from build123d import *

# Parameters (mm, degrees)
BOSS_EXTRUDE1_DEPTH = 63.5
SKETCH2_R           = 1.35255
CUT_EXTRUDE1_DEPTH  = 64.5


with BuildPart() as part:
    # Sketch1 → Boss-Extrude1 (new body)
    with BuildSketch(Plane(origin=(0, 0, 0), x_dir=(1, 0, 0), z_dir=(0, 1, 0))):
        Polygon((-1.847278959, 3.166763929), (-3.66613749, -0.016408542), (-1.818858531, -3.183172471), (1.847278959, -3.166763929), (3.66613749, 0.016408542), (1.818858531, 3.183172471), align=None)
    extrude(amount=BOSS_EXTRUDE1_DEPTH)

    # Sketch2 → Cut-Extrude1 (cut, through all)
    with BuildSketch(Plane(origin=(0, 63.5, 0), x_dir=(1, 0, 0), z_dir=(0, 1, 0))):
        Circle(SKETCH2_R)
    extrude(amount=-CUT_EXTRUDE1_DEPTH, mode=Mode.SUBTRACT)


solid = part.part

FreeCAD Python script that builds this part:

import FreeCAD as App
import Part
import Sketcher
Q = App.Units.Quantity

doc = App.newDocument("Part")
body = doc.addObject("PartDesign::Body", "Body")

sketch1 = body.newObject("Sketcher::SketchObject", "Sketch")
sketch1.AttachmentSupport = (doc.getObject("XZ_Plane"), [""])
sketch1.MapMode = "FlatFace"
sketch1.addGeometry([
    Part.LineSegment(App.Vector(-1.8, -3.2, 0), App.Vector(-3.7, 0, 0)),
    Part.LineSegment(App.Vector(-3.7, 0, 0), App.Vector(-1.8, 3.2, 0)),
    Part.LineSegment(App.Vector(-1.8, 3.2, 0), App.Vector(1.8, 3.2, 0)),
    Part.LineSegment(App.Vector(1.8, 3.2, 0), App.Vector(3.7, 0, 0)),
    Part.LineSegment(App.Vector(3.7, 0, 0), App.Vector(1.8, -3.2, 0)),
    Part.LineSegment(App.Vector(1.8, -3.2, 0), App.Vector(-1.8, -3.2, 0)),
], False)
sketch1.addConstraint([
    Sketcher.Constraint("Coincident", 0, 2, 1, 1),
    Sketcher.Constraint("Coincident", 1, 2, 2, 1),
    Sketcher.Constraint("Coincident", 2, 2, 3, 1),
    Sketcher.Constraint("Coincident", 3, 2, 4, 1),
    Sketcher.Constraint("Coincident", 4, 2, 5, 1),
    Sketcher.Constraint("Coincident", 5, 2, 0, 1),
    Sketcher.Constraint("Symmetric", 0, 2, 3, 2, -1, 1),
    Sketcher.Constraint("Symmetric", 1, 2, 4, 2, -1, 1),
    Sketcher.Constraint("Symmetric", 2, 2, 5, 2, -1, 1),
    Sketcher.Constraint("Equal", 0, 1),
    Sketcher.Constraint("Equal", 1, 2),
    Sketcher.Constraint("DistanceY", -1, 1, 0, 2, Q("0.016409 mm")),
    Sketcher.Constraint("DistanceX", 1, 2, -1, 1, Q("1.818859 mm")),
    Sketcher.Constraint("DistanceX", -1, 1, 2, 2, Q("1.847279 mm")),
    Sketcher.Constraint("DistanceX", 0, 2, 1, 2, Q("1.847279 mm")),
])
pad1 = body.newObject("PartDesign::Pad", "Pad")
pad1.Profile = sketch1
pad1.Length = 63.5
pad1.Reversed = True

sketch2 = body.newObject("Sketcher::SketchObject", "Sketch001")
sketch2.AttachmentSupport = (doc.getObject("XZ_Plane"), [""])
sketch2.MapMode = "FlatFace"
sketch2.AttachmentOffset = App.Placement(App.Vector(0, 0, -63.5), App.Rotation())
sketch2.addGeometry(Part.Circle(App.Vector(0, 0, 0), App.Vector(0, 0, 1), 1.4), False)
sketch2.addConstraint([
    Sketcher.Constraint("Coincident", 0, 3, -1, 1),
    Sketcher.Constraint("Diameter", 0, Q("2.7051 mm")),
])
pocket1 = body.newObject("PartDesign::Pocket", "Pocket")
pocket1.Profile = sketch2
pocket1.Type = "ThroughAll"
pocket1.Reversed = True

doc.recompute()
